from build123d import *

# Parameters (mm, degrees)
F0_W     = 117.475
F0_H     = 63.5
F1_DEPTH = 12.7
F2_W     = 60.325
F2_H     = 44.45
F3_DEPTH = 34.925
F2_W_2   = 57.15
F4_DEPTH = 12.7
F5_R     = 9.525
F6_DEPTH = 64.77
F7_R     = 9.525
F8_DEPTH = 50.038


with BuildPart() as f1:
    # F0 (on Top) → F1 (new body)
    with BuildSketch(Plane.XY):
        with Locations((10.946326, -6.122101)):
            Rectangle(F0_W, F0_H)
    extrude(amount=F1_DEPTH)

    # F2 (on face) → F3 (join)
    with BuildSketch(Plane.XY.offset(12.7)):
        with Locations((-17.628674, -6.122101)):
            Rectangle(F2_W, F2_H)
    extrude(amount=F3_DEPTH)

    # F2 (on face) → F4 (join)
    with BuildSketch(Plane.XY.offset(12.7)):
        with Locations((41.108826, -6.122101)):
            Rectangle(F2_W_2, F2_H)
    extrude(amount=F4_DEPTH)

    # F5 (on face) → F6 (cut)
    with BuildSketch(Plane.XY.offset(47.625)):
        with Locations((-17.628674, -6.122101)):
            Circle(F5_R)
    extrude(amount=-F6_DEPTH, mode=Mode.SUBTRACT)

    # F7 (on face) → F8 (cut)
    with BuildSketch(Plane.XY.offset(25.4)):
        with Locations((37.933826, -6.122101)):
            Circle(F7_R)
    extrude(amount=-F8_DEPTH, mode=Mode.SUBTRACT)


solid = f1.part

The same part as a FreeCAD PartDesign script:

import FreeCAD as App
import Part
import Sketcher

V = App.Vector
Q = App.Units.Quantity


def add_polygon(sketch, points):
    """Adds a closed chain of lines whose ends are joined by coincident constraints."""
    first, n = sketch.GeometryCount, len(points)
    for a, b in zip(points, points[1:] + points[:1]):
        sketch.addGeometry(Part.LineSegment(App.Vector(*a, 0), App.Vector(*b, 0)), False)
    for i in range(n):
        sketch.addConstraint(Sketcher.Constraint("Coincident", first + i, 2, first + (i + 1) % n, 1))

doc = App.newDocument("Part")
body = doc.addObject("PartDesign::Body", "Body")

sketch1 = body.newObject("Sketcher::SketchObject", "Sketch")
sketch1.AttachmentSupport = (doc.getObject("XY_Plane"), [""])
sketch1.MapMode = "FlatFace"
add_polygon(sketch1, [(-48, 26), (-48, -38), (70, -38), (70, 26)])
sketch1.addConstraint([
    Sketcher.Constraint("Vertical", 0),
    Sketcher.Constraint("Horizontal", 1),
    Sketcher.Constraint("Vertical", 2),
    Sketcher.Constraint("Horizontal", 3),
    Sketcher.Constraint("DistanceY", 0, 2, 0, 1, Q("2.5 in")),
    Sketcher.Constraint("DistanceX", 1, 1, 1, 2, Q("4.625 in")),
    Sketcher.Constraint("DistanceY", 0, 2, -1, 1, 37.872101),
    Sketcher.Constraint("DistanceX", 0, 2, -1, 1, 47.791174),
])
pad1 = body.newObject("PartDesign::Pad", "Pad")
pad1.Profile = sketch1
pad1.Length = Q("0.5 in")

sketch2 = body.newObject("Sketcher::SketchObject", "Sketch001")
sketch2.AttachmentSupport = (doc.getObject("XY_Plane"), [""])
sketch2.MapMode = "FlatFace"
sketch2.AttachmentOffset = App.Placement(V(0, 0, 0.5 * 25.4), App.Rotation())
add_polygon(sketch2, [(-48, 16), (-48, -28), (13, -28), (13, 16)])
sketch2.addConstraint([
    Sketcher.Constraint("Vertical", 0),
    Sketcher.Constraint("Horizontal", 1),
    Sketcher.Constraint("Vertical", 2),
    Sketcher.Constraint("Horizontal", 3),
    Sketcher.Constraint("DistanceY", 0, 2, 0, 1, Q("1.75 in")),
    Sketcher.Constraint("DistanceX", 1, 1, 1, 2, Q("2.375 in")),
    Sketcher.Constraint("DistanceY", 0, 2, -1, 1, 28.347101),
    Sketcher.Constraint("DistanceX", 0, 2, -1, 1, 47.791174),
])
pad2 = body.newObject("PartDesign::Pad", "Pad001")
pad2.Profile = sketch2
pad2.Length = Q("1.375 in")

sketch3 = body.newObject("Sketcher::SketchObject", "Sketch002")
sketch3.AttachmentSupport = (doc.getObject("XY_Plane"), [""])
sketch3.MapMode = "FlatFace"
sketch3.AttachmentOffset = App.Placement(V(0, 0, 0.5 * 25.4), App.Rotation())
add_polygon(sketch3, [(13, 16), (13, -28), (70, -28), (70, 16)])
sketch3.addConstraint([
    Sketcher.Constraint("Vertical", 0),
    Sketcher.Constraint("Horizontal", 1),
    Sketcher.Constraint("Vertical", 2),
    Sketcher.Constraint("Horizontal", 3),
    Sketcher.Constraint("DistanceX", 1, 1, 1, 2, Q("2.25 in")),
    Sketcher.Constraint("DistanceY", 0, 2, 0, 1, Q("1.75 in")),
    Sketcher.Constraint("DistanceY", 0, 2, -1, 1, 28.347101),
    Sketcher.Constraint("DistanceX", -1, 1, 0, 2, 12.533826),
])
pad3 = body.newObject("PartDesign::Pad", "Pad002")
pad3.Profile = sketch3
pad3.Length = Q("0.5 in")

sketch4 = body.newObject("Sketcher::SketchObject", "Sketch003")
sketch4.AttachmentSupport = (doc.getObject("XY_Plane"), [""])
sketch4.MapMode = "FlatFace"
sketch4.AttachmentOffset = App.Placement(V(0, 0, 1.875 * 25.4), App.Rotation())
sketch4.addGeometry(Part.Circle(V(-18, -6, 0), V(0, 0, 1), 10), False)
sketch4.addConstraint([
    Sketcher.Constraint("Diameter", 0, Q("0.75 in")),
    Sketcher.Constraint("DistanceY", 0, 3, -1, 1, 6.122101),
    Sketcher.Constraint("DistanceX", 0, 3, -1, 1, 17.628674),
])
pocket1 = body.newObject("PartDesign::Pocket", "Pocket")
pocket1.Profile = sketch4
pocket1.Length = Q("2.55 in")

sketch5 = body.newObject("Sketcher::SketchObject", "Sketch004")
sketch5.AttachmentSupport = (doc.getObject("XY_Plane"), [""])
sketch5.MapMode = "FlatFace"
sketch5.AttachmentOffset = App.Placement(V(0, 0, 1 * 25.4), App.Rotation())
sketch5.addGeometry(Part.Circle(V(38, -6, 0), V(0, 0, 1), 10), False)
sketch5.addConstraint([
    Sketcher.Constraint("Diameter", 0, Q("0.75 in")),
    Sketcher.Constraint("DistanceY", 0, 3, -1, 1, 6.122101),
    Sketcher.Constraint("DistanceX", -1, 1, 0, 3, 37.933826),
])
pocket2 = body.newObject("PartDesign::Pocket", "Pocket001")
pocket2.Profile = sketch5
pocket2.Length = Q("1.97 in")

doc.recompute()
